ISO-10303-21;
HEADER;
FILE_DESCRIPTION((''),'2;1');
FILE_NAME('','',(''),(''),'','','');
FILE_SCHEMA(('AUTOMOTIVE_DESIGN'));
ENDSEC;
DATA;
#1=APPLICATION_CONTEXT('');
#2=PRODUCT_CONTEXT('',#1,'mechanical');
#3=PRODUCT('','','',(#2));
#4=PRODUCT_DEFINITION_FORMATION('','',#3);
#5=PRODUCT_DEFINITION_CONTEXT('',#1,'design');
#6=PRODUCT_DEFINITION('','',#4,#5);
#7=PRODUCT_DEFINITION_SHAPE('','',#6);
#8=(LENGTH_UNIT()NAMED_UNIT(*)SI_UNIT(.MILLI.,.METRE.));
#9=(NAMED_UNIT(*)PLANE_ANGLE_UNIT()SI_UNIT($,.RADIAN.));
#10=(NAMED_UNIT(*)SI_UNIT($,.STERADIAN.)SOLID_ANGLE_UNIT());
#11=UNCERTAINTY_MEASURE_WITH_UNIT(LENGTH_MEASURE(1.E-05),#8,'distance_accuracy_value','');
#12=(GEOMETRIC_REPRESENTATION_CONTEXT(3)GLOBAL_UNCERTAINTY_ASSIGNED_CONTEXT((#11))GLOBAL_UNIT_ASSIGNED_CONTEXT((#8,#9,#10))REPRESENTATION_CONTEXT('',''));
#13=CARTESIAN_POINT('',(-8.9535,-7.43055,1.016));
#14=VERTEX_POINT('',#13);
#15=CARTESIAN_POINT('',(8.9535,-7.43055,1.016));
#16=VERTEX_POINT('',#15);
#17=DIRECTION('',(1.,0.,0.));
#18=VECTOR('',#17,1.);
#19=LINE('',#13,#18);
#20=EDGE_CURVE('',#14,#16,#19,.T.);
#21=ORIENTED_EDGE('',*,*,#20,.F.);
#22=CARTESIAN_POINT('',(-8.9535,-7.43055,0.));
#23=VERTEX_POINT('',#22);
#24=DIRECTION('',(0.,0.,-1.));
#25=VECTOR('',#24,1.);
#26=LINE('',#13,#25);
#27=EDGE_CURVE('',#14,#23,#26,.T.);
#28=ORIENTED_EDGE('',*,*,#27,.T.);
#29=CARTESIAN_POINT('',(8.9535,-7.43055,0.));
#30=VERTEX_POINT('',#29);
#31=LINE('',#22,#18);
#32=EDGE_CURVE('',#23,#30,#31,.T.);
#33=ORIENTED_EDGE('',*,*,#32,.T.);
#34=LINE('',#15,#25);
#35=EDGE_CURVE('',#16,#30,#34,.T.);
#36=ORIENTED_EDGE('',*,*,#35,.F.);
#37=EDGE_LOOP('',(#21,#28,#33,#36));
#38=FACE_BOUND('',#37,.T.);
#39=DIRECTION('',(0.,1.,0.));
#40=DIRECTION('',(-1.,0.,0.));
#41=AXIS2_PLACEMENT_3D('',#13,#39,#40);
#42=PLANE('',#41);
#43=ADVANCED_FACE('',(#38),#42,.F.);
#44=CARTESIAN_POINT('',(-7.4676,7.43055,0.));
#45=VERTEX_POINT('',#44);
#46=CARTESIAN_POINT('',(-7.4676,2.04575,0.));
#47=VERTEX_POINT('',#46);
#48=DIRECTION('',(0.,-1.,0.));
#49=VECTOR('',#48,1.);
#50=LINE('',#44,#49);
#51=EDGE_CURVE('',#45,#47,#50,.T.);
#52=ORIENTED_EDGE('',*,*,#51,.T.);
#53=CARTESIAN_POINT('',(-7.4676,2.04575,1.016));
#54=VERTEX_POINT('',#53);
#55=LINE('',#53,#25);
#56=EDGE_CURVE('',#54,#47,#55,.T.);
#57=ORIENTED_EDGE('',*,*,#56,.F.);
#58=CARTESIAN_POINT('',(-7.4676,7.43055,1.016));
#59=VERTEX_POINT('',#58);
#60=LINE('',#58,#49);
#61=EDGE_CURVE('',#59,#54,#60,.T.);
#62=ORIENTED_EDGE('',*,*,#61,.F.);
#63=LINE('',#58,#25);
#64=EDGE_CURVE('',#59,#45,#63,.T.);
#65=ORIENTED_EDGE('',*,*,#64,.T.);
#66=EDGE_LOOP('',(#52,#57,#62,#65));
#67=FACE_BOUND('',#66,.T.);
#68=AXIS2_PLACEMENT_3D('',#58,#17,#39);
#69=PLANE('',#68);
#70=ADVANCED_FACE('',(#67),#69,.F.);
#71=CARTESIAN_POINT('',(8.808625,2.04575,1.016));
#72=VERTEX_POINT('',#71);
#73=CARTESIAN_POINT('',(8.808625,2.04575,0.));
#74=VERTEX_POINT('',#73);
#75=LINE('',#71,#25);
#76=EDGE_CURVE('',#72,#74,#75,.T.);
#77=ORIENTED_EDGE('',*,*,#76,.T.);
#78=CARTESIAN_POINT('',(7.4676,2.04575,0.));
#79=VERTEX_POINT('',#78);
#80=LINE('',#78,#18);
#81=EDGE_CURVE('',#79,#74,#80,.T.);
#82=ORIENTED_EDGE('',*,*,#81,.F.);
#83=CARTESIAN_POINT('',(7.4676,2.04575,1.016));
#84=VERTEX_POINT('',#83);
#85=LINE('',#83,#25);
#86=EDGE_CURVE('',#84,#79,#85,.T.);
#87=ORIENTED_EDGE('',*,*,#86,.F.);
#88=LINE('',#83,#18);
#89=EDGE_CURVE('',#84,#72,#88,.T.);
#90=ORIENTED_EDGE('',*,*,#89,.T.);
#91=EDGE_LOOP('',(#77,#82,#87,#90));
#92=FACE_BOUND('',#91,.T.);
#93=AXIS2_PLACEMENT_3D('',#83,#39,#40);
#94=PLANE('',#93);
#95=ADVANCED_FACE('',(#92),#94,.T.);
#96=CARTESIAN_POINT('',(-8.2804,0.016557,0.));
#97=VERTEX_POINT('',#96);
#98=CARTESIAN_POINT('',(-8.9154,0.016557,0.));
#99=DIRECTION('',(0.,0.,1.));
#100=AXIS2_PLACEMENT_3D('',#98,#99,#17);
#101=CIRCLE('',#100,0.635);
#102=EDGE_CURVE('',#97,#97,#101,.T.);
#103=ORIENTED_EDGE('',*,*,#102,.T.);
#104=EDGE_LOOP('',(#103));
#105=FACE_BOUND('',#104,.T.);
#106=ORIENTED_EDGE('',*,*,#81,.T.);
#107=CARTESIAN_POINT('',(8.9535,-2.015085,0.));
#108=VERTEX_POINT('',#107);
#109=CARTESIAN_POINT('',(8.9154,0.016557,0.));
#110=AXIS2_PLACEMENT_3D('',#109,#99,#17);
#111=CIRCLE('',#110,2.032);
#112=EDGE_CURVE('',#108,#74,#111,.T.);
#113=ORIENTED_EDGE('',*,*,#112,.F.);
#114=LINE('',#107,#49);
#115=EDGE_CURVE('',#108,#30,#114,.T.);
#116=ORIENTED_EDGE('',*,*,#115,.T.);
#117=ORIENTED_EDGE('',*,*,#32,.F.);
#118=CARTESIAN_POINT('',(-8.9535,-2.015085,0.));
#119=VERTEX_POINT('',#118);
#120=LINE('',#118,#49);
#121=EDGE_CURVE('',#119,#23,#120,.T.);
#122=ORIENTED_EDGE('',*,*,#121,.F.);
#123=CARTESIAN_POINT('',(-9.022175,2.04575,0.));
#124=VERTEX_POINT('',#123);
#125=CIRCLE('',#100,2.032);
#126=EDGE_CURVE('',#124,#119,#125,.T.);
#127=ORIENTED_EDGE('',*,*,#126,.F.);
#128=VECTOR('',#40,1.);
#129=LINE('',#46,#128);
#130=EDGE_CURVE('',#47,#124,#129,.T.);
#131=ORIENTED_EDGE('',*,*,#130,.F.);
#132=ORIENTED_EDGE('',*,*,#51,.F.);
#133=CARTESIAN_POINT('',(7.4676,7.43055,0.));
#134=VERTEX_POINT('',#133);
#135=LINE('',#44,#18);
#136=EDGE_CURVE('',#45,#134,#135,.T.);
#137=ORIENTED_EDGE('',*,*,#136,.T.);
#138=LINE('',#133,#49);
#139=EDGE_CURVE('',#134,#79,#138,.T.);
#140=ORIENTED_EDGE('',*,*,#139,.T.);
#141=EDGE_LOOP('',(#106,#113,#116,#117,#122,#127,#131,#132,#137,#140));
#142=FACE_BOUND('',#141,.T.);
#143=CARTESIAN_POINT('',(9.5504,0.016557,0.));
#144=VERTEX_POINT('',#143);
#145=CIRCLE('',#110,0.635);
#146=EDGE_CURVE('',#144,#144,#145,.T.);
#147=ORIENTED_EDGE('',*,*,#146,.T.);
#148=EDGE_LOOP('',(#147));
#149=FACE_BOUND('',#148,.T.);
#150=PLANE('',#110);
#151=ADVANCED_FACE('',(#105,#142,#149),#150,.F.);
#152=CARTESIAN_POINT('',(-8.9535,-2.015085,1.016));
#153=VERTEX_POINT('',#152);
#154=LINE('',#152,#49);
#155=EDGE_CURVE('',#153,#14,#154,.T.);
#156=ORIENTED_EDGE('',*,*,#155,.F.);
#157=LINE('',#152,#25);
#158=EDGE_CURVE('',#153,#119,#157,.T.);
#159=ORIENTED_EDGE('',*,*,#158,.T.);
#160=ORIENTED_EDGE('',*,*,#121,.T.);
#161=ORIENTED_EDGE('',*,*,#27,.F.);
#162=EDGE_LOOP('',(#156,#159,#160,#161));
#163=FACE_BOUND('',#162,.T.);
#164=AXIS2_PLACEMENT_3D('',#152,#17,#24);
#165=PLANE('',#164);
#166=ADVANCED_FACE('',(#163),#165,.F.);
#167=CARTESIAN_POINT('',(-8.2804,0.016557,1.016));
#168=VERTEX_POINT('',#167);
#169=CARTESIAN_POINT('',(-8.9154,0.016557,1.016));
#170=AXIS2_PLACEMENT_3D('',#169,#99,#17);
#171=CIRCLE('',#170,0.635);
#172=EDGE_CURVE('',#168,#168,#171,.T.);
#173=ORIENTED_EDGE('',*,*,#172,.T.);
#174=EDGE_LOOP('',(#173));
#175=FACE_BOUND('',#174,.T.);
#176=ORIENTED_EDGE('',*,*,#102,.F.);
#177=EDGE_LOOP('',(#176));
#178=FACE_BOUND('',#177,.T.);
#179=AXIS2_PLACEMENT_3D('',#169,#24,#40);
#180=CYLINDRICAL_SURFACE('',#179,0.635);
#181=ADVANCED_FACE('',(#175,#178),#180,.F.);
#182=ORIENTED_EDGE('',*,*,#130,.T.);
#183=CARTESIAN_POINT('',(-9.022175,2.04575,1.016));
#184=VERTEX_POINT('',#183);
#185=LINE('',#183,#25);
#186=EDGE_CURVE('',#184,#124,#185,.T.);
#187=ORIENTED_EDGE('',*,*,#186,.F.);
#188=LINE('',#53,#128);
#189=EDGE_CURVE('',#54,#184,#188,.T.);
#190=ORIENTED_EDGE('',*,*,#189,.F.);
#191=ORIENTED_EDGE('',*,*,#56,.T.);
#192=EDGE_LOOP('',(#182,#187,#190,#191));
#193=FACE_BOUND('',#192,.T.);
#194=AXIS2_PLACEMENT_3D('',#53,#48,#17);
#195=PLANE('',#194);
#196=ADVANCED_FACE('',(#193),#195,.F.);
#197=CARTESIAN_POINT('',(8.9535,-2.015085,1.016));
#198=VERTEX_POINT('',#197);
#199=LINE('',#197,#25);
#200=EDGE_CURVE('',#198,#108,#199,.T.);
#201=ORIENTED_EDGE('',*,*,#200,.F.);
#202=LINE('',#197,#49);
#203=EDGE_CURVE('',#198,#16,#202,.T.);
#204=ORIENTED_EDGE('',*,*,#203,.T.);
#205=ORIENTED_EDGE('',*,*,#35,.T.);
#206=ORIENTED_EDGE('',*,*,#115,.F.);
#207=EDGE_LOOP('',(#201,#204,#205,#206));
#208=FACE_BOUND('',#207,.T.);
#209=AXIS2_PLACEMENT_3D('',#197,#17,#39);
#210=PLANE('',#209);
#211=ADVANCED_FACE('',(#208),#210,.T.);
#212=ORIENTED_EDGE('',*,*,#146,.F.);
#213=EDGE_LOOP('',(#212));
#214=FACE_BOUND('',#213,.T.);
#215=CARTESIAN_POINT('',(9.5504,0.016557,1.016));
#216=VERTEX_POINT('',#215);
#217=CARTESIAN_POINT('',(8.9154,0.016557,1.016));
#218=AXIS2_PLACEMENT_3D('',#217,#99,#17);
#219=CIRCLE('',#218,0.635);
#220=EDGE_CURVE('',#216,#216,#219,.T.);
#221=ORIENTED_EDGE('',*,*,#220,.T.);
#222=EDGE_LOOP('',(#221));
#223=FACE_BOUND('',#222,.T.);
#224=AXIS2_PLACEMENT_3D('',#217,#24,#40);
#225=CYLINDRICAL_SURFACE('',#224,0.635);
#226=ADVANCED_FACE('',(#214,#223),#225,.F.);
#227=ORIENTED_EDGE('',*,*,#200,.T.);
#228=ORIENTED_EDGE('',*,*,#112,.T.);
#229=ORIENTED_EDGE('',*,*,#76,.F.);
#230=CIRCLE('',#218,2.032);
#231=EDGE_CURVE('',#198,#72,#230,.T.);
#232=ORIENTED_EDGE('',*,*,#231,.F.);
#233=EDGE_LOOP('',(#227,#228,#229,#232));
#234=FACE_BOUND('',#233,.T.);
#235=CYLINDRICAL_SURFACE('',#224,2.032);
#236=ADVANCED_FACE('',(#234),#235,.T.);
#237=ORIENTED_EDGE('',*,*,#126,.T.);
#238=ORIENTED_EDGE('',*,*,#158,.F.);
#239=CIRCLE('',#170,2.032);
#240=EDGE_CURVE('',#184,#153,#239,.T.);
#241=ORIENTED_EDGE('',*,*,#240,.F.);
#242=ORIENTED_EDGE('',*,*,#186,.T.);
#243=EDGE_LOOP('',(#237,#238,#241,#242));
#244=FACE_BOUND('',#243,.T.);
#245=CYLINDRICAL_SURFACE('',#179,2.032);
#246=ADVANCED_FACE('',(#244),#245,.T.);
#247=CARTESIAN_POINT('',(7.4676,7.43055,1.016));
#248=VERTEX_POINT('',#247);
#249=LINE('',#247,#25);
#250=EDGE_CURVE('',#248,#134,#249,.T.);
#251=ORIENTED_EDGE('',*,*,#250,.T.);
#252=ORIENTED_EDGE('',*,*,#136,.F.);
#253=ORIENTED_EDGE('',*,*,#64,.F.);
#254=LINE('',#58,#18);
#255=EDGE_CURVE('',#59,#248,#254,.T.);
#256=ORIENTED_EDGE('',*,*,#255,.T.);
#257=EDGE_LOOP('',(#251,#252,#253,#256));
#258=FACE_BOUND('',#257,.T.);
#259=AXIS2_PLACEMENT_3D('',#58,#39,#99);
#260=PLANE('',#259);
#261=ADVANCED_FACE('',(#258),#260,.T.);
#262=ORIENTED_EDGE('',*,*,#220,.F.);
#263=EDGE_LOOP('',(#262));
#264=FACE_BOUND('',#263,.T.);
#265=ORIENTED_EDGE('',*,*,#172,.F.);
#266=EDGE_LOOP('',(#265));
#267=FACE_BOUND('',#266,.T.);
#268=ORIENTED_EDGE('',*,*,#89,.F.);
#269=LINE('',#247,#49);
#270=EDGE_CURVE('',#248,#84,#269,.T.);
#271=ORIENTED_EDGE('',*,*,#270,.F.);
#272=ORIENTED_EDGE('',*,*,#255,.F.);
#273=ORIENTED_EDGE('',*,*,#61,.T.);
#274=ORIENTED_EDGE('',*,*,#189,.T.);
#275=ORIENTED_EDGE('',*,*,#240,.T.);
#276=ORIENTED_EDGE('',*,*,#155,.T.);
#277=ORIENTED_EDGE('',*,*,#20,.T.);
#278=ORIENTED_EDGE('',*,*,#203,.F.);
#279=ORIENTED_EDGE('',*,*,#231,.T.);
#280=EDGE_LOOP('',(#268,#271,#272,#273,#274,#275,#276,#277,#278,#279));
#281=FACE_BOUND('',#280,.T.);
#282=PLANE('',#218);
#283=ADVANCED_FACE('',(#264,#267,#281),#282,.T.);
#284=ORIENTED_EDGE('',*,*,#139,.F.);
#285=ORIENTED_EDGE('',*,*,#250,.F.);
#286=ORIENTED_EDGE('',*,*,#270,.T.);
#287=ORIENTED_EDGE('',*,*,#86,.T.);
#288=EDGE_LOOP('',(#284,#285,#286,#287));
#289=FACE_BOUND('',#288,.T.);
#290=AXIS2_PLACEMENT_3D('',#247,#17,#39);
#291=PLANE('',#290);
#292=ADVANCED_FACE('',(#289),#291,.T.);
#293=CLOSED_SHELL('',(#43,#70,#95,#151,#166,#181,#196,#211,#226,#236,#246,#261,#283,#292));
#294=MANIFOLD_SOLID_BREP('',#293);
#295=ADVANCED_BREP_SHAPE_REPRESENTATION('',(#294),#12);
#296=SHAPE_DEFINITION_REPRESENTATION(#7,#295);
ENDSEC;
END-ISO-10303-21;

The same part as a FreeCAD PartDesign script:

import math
import FreeCAD as App
import Part
import Sketcher

V = App.Vector
Q = App.Units.Quantity

doc = App.newDocument("Part")
body = doc.addObject("PartDesign::Body", "Body")

sketch1 = body.newObject("Sketcher::SketchObject", "Sketch")
sketch1.AttachmentSupport = (doc.getObject("XY_Plane"), [""])
sketch1.MapMode = "FlatFace"
sketch1.addGeometry(Part.LineSegment(V(7.5, 7.4, 0), V(-7.5, 7.4, 0)), False)
sketch1.addGeometry(Part.LineSegment(V(-7.5, 7.4, 0), V(-7.5, 2, 0)), False)
sketch1.addGeometry(Part.LineSegment(V(-7.5, 2, 0), V(-9, 2, 0)), False)
sketch1.addGeometry(Part.ArcOfCircle(Part.Circle(V(-8.9, 0, 0), V(0, 0, 1), 2), math.radians(93), math.radians(269)), False)
sketch1.addGeometry(Part.LineSegment(V(-9, -2, 0), V(-9, -7.4, 0)), False)
sketch1.addGeometry(Part.LineSegment(V(-9, -7.4, 0), V(9, -7.4, 0)), False)
sketch1.addGeometry(Part.LineSegment(V(9, -7.4, 0), V(9, -2, 0)), False)
sketch1.addGeometry(Part.ArcOfCircle(Part.Circle(V(8.9, 0, 0), V(0, 0, 1), 2), math.radians(-89), math.radians(93)), False)
sketch1.addGeometry(Part.LineSegment(V(8.8, 2, 0), V(7.5, 2, 0)), False)
sketch1.addGeometry(Part.LineSegment(V(7.5, 2, 0), V(7.5, 7.4, 0)), False)
sketch1.addGeometry(Part.Circle(V(8.9, 0, 0), V(0, 0, 1), 0.6), False)
sketch1.addGeometry(Part.Circle(V(-8.9, 0, 0), V(0, 0, 1), 0.6), False)
sketch1.addConstraint(Sketcher.Constraint("Coincident", 0, 2, 1, 1))
sketch1.addConstraint(Sketcher.Constraint("Coincident", 1, 2, 2, 1))
sketch1.addConstraint(Sketcher.Constraint("Coincident", 2, 2, 3, 1))
sketch1.addConstraint(Sketcher.Constraint("Coincident", 3, 2, 4, 1))
sketch1.addConstraint(Sketcher.Constraint("Coincident", 4, 2, 5, 1))
sketch1.addConstraint(Sketcher.Constraint("Coincident", 5, 2, 6, 1))
sketch1.addConstraint(Sketcher.Constraint("Coincident", 6, 2, 7, 1))
sketch1.addConstraint(Sketcher.Constraint("Coincident", 7, 2, 8, 1))
sketch1.addConstraint(Sketcher.Constraint("Coincident", 8, 2, 9, 1))
sketch1.addConstraint(Sketcher.Constraint("Coincident", 9, 2, 0, 1))
sketch1.addConstraint(Sketcher.Constraint("Horizontal", 0))
sketch1.addConstraint(Sketcher.Constraint("Vertical", 1))
sketch1.addConstraint(Sketcher.Constraint("Horizontal", 2))
sketch1.addConstraint(Sketcher.Constraint("Vertical", 4))
sketch1.addConstraint(Sketcher.Constraint("Horizontal", 5))
sketch1.addConstraint(Sketcher.Constraint("Vertical", 6))
sketch1.addConstraint(Sketcher.Constraint("Horizontal", 8))
sketch1.addConstraint(Sketcher.Constraint("Vertical", 9))
sketch1.addConstraint(Sketcher.Constraint("Coincident", 10, 3, 7, 3))
sketch1.addConstraint(Sketcher.Constraint("Coincident", 11, 3, 3, 3))
sketch1.addConstraint(Sketcher.Constraint("Equal", 3, 7))
sketch1.addConstraint(Sketcher.Constraint("Equal", 10, 11))
sketch1.addConstraint(Sketcher.Constraint("Symmetric", 3, 3, 7, 3, -2))
sketch1.addConstraint(Sketcher.Constraint("Symmetric", 1, 2, 8, 2, -2))
sketch1.addConstraint(Sketcher.Constraint("Horizontal", 3, 2, 6, 2))
sketch1.addConstraint(Sketcher.Constraint("Diameter", 10, Q("0.05 in")))
sketch1.addConstraint(Sketcher.Constraint("Radius", 3, Q("0.08 in")))
sketch1.addConstraint(Sketcher.Constraint("DistanceX", 0, 2, 0, 1, Q("0.588 in")))
sketch1.addConstraint(Sketcher.Constraint("DistanceX", 5, 1, 5, 2, Q("0.705 in")))
sketch1.addConstraint(Sketcher.Constraint("DistanceY", 1, 2, 1, 1, Q("0.212 in")))
sketch1.addConstraint(Sketcher.Constraint("DistanceX", 3, 3, -1, 1, Q("0.351 in")))
sketch1.addConstraint(Sketcher.Constraint("DistanceY", 4, 2, 2, 2, 9.4763))
sketch1.addConstraint(Sketcher.Constraint("DistanceX", 2, 2, 2, 1, 1.554575))
sketch1.addConstraint(Sketcher.Constraint("DistanceY", -1, 1, 0, 2, 7.43055))
pad1 = body.newObject("PartDesign::Pad", "Pad")
pad1.Profile = sketch1
pad1.Length = Q("0.04 in")

doc.recompute()
